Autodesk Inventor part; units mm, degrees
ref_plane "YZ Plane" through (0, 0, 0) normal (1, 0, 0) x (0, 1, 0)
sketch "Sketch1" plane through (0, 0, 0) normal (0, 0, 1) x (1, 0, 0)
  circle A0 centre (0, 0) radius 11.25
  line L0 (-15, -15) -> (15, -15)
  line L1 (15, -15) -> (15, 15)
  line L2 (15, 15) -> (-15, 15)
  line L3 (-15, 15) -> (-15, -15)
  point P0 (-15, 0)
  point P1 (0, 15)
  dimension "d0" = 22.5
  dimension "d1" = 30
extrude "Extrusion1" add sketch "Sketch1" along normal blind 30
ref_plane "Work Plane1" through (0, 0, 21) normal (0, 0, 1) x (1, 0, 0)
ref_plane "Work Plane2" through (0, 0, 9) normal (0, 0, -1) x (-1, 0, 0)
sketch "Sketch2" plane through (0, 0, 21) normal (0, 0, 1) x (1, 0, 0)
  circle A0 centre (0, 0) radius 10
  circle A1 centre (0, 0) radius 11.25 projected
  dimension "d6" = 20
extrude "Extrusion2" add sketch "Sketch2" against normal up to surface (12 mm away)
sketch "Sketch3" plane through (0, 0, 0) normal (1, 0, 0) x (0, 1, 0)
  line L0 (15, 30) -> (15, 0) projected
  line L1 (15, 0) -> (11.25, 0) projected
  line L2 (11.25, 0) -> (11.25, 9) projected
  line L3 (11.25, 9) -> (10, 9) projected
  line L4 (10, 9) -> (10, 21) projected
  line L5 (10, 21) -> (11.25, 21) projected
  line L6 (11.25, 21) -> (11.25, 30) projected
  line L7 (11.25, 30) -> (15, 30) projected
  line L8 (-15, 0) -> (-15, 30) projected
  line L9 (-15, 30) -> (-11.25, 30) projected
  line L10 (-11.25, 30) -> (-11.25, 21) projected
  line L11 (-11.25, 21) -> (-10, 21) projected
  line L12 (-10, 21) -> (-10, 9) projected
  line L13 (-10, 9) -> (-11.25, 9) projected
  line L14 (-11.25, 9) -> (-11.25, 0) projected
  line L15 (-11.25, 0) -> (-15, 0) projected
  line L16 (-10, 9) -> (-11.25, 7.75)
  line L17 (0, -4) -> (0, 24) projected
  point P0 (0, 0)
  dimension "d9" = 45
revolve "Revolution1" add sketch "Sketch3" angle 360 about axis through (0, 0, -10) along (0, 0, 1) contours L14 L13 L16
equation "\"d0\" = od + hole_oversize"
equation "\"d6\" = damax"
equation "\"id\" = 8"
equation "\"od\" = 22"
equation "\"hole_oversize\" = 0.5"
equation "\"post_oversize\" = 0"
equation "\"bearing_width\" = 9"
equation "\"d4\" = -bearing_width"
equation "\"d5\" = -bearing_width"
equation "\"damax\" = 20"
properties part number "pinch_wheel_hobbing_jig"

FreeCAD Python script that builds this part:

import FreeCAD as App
import Part
import Sketcher
from FreeCAD import Vector
Q = App.Units.Quantity


def add_polygon(sketch, points):
    """Adds a closed chain of lines whose ends are joined by coincident constraints."""
    first, n = sketch.GeometryCount, len(points)
    for a, b in zip(points, points[1:] + points[:1]):
        sketch.addGeometry(Part.LineSegment(App.Vector(*a, 0), App.Vector(*b, 0)), False)
    for i in range(n):
        sketch.addConstraint(Sketcher.Constraint("Coincident", first + i, 2, first + (i + 1) % n, 1))

doc = App.newDocument("Part")
body = doc.addObject("PartDesign::Body", "Body")

# Sketch on XY plane
sketch1 = body.newObject("Sketcher::SketchObject", "Sketch")
sketch1.AttachmentSupport = (doc.getObject("XY_Plane"), [""])
sketch1.MapMode = "FlatFace"
add_polygon(sketch1, [(-15, 15), (-15, -15), (15, -15), (15, 15)])  # lines 0-3
sketch1.addGeometry(Part.Circle(Vector(0, 0, 0), Vector(0, 0, 1), 11.25), False)  # 4
sketch1.addConstraint(Sketcher.Constraint("Vertical", 0))
sketch1.addConstraint(Sketcher.Constraint("Horizontal", 1))
sketch1.addConstraint(Sketcher.Constraint("Vertical", 2))
sketch1.addConstraint(Sketcher.Constraint("Horizontal", 3))
sketch1.addConstraint(Sketcher.Constraint("Coincident", 4, 3, -1, 1))
sketch1.addConstraint(Sketcher.Constraint("Symmetric", 0, 2, 2, 2, -1, 1))
sketch1.addConstraint(Sketcher.Constraint("Equal", 3, 0))
sketch1.addConstraint(Sketcher.Constraint("Diameter", 4, Q("22.5 mm")))
sketch1.addConstraint(Sketcher.Constraint("DistanceX", 1, 1, 1, 2, Q("30 mm")))
pad1 = body.newObject("PartDesign::Pad", "Pad")
pad1.Profile = sketch1
pad1.Length = 30

# Sketch on XY plane
sketch2 = body.newObject("Sketcher::SketchObject", "Sketch001")
sketch2.AttachmentSupport = (doc.getObject("XY_Plane"), [""])
sketch2.MapMode = "FlatFace"
sketch2.AttachmentOffset = App.Placement(Vector(0, 0, 21), App.Rotation())
sketch2.addGeometry(Part.Circle(Vector(0, 0, 0), Vector(0, 0, 1), 11.25), False)
sketch2.addGeometry(Part.Circle(Vector(0, 0, 0), Vector(0, 0, 1), 10), False)
sketch2.addConstraint(Sketcher.Constraint("Coincident", 0, 3, -1, 1))
sketch2.addConstraint(Sketcher.Constraint("Coincident", 1, 3, -1, 1))
sketch2.addConstraint(Sketcher.Constraint("Diameter", 1, Q("20 mm")))
sketch2.addConstraint(Sketcher.Constraint("Diameter", 0, Q("22.5 mm")))
pad2 = body.newObject("PartDesign::Pad", "Pad001")
pad2.Profile = sketch2
pad2.Length = 12
pad2.Reversed = True

# Sketch on YZ plane
sketch3 = body.newObject("Sketcher::SketchObject", "Sketch002")
sketch3.AttachmentSupport = (doc.getObject("YZ_Plane"), [""])
sketch3.MapMode = "FlatFace"
add_polygon(sketch3, [(-11.25, 9), (-11.25, 7.75), (-10, 9)])  # lines 0-2
sketch3.addConstraint(Sketcher.Constraint("Vertical", 0))
sketch3.addConstraint(Sketcher.Constraint("Horizontal", 2))
sketch3.addConstraint(Sketcher.Constraint("Equal", 2, 0))
sketch3.addConstraint(Sketcher.Constraint("DistanceX", 1, 2, -1, 1, Q("10 mm")))
sketch3.addConstraint(Sketcher.Constraint("DistanceY", -1, 1, 1, 2, Q("9 mm")))
sketch3.addConstraint(Sketcher.Constraint("DistanceX", 2, 2, 2, 1, Q("1.25 mm")))
revolution = body.newObject("PartDesign::Revolution", "Revolution")
revolution.Profile = sketch3
revolution.ReferenceAxis = (sketch3, ["V_Axis"])
revolution.Angle = 360

doc.recompute()
